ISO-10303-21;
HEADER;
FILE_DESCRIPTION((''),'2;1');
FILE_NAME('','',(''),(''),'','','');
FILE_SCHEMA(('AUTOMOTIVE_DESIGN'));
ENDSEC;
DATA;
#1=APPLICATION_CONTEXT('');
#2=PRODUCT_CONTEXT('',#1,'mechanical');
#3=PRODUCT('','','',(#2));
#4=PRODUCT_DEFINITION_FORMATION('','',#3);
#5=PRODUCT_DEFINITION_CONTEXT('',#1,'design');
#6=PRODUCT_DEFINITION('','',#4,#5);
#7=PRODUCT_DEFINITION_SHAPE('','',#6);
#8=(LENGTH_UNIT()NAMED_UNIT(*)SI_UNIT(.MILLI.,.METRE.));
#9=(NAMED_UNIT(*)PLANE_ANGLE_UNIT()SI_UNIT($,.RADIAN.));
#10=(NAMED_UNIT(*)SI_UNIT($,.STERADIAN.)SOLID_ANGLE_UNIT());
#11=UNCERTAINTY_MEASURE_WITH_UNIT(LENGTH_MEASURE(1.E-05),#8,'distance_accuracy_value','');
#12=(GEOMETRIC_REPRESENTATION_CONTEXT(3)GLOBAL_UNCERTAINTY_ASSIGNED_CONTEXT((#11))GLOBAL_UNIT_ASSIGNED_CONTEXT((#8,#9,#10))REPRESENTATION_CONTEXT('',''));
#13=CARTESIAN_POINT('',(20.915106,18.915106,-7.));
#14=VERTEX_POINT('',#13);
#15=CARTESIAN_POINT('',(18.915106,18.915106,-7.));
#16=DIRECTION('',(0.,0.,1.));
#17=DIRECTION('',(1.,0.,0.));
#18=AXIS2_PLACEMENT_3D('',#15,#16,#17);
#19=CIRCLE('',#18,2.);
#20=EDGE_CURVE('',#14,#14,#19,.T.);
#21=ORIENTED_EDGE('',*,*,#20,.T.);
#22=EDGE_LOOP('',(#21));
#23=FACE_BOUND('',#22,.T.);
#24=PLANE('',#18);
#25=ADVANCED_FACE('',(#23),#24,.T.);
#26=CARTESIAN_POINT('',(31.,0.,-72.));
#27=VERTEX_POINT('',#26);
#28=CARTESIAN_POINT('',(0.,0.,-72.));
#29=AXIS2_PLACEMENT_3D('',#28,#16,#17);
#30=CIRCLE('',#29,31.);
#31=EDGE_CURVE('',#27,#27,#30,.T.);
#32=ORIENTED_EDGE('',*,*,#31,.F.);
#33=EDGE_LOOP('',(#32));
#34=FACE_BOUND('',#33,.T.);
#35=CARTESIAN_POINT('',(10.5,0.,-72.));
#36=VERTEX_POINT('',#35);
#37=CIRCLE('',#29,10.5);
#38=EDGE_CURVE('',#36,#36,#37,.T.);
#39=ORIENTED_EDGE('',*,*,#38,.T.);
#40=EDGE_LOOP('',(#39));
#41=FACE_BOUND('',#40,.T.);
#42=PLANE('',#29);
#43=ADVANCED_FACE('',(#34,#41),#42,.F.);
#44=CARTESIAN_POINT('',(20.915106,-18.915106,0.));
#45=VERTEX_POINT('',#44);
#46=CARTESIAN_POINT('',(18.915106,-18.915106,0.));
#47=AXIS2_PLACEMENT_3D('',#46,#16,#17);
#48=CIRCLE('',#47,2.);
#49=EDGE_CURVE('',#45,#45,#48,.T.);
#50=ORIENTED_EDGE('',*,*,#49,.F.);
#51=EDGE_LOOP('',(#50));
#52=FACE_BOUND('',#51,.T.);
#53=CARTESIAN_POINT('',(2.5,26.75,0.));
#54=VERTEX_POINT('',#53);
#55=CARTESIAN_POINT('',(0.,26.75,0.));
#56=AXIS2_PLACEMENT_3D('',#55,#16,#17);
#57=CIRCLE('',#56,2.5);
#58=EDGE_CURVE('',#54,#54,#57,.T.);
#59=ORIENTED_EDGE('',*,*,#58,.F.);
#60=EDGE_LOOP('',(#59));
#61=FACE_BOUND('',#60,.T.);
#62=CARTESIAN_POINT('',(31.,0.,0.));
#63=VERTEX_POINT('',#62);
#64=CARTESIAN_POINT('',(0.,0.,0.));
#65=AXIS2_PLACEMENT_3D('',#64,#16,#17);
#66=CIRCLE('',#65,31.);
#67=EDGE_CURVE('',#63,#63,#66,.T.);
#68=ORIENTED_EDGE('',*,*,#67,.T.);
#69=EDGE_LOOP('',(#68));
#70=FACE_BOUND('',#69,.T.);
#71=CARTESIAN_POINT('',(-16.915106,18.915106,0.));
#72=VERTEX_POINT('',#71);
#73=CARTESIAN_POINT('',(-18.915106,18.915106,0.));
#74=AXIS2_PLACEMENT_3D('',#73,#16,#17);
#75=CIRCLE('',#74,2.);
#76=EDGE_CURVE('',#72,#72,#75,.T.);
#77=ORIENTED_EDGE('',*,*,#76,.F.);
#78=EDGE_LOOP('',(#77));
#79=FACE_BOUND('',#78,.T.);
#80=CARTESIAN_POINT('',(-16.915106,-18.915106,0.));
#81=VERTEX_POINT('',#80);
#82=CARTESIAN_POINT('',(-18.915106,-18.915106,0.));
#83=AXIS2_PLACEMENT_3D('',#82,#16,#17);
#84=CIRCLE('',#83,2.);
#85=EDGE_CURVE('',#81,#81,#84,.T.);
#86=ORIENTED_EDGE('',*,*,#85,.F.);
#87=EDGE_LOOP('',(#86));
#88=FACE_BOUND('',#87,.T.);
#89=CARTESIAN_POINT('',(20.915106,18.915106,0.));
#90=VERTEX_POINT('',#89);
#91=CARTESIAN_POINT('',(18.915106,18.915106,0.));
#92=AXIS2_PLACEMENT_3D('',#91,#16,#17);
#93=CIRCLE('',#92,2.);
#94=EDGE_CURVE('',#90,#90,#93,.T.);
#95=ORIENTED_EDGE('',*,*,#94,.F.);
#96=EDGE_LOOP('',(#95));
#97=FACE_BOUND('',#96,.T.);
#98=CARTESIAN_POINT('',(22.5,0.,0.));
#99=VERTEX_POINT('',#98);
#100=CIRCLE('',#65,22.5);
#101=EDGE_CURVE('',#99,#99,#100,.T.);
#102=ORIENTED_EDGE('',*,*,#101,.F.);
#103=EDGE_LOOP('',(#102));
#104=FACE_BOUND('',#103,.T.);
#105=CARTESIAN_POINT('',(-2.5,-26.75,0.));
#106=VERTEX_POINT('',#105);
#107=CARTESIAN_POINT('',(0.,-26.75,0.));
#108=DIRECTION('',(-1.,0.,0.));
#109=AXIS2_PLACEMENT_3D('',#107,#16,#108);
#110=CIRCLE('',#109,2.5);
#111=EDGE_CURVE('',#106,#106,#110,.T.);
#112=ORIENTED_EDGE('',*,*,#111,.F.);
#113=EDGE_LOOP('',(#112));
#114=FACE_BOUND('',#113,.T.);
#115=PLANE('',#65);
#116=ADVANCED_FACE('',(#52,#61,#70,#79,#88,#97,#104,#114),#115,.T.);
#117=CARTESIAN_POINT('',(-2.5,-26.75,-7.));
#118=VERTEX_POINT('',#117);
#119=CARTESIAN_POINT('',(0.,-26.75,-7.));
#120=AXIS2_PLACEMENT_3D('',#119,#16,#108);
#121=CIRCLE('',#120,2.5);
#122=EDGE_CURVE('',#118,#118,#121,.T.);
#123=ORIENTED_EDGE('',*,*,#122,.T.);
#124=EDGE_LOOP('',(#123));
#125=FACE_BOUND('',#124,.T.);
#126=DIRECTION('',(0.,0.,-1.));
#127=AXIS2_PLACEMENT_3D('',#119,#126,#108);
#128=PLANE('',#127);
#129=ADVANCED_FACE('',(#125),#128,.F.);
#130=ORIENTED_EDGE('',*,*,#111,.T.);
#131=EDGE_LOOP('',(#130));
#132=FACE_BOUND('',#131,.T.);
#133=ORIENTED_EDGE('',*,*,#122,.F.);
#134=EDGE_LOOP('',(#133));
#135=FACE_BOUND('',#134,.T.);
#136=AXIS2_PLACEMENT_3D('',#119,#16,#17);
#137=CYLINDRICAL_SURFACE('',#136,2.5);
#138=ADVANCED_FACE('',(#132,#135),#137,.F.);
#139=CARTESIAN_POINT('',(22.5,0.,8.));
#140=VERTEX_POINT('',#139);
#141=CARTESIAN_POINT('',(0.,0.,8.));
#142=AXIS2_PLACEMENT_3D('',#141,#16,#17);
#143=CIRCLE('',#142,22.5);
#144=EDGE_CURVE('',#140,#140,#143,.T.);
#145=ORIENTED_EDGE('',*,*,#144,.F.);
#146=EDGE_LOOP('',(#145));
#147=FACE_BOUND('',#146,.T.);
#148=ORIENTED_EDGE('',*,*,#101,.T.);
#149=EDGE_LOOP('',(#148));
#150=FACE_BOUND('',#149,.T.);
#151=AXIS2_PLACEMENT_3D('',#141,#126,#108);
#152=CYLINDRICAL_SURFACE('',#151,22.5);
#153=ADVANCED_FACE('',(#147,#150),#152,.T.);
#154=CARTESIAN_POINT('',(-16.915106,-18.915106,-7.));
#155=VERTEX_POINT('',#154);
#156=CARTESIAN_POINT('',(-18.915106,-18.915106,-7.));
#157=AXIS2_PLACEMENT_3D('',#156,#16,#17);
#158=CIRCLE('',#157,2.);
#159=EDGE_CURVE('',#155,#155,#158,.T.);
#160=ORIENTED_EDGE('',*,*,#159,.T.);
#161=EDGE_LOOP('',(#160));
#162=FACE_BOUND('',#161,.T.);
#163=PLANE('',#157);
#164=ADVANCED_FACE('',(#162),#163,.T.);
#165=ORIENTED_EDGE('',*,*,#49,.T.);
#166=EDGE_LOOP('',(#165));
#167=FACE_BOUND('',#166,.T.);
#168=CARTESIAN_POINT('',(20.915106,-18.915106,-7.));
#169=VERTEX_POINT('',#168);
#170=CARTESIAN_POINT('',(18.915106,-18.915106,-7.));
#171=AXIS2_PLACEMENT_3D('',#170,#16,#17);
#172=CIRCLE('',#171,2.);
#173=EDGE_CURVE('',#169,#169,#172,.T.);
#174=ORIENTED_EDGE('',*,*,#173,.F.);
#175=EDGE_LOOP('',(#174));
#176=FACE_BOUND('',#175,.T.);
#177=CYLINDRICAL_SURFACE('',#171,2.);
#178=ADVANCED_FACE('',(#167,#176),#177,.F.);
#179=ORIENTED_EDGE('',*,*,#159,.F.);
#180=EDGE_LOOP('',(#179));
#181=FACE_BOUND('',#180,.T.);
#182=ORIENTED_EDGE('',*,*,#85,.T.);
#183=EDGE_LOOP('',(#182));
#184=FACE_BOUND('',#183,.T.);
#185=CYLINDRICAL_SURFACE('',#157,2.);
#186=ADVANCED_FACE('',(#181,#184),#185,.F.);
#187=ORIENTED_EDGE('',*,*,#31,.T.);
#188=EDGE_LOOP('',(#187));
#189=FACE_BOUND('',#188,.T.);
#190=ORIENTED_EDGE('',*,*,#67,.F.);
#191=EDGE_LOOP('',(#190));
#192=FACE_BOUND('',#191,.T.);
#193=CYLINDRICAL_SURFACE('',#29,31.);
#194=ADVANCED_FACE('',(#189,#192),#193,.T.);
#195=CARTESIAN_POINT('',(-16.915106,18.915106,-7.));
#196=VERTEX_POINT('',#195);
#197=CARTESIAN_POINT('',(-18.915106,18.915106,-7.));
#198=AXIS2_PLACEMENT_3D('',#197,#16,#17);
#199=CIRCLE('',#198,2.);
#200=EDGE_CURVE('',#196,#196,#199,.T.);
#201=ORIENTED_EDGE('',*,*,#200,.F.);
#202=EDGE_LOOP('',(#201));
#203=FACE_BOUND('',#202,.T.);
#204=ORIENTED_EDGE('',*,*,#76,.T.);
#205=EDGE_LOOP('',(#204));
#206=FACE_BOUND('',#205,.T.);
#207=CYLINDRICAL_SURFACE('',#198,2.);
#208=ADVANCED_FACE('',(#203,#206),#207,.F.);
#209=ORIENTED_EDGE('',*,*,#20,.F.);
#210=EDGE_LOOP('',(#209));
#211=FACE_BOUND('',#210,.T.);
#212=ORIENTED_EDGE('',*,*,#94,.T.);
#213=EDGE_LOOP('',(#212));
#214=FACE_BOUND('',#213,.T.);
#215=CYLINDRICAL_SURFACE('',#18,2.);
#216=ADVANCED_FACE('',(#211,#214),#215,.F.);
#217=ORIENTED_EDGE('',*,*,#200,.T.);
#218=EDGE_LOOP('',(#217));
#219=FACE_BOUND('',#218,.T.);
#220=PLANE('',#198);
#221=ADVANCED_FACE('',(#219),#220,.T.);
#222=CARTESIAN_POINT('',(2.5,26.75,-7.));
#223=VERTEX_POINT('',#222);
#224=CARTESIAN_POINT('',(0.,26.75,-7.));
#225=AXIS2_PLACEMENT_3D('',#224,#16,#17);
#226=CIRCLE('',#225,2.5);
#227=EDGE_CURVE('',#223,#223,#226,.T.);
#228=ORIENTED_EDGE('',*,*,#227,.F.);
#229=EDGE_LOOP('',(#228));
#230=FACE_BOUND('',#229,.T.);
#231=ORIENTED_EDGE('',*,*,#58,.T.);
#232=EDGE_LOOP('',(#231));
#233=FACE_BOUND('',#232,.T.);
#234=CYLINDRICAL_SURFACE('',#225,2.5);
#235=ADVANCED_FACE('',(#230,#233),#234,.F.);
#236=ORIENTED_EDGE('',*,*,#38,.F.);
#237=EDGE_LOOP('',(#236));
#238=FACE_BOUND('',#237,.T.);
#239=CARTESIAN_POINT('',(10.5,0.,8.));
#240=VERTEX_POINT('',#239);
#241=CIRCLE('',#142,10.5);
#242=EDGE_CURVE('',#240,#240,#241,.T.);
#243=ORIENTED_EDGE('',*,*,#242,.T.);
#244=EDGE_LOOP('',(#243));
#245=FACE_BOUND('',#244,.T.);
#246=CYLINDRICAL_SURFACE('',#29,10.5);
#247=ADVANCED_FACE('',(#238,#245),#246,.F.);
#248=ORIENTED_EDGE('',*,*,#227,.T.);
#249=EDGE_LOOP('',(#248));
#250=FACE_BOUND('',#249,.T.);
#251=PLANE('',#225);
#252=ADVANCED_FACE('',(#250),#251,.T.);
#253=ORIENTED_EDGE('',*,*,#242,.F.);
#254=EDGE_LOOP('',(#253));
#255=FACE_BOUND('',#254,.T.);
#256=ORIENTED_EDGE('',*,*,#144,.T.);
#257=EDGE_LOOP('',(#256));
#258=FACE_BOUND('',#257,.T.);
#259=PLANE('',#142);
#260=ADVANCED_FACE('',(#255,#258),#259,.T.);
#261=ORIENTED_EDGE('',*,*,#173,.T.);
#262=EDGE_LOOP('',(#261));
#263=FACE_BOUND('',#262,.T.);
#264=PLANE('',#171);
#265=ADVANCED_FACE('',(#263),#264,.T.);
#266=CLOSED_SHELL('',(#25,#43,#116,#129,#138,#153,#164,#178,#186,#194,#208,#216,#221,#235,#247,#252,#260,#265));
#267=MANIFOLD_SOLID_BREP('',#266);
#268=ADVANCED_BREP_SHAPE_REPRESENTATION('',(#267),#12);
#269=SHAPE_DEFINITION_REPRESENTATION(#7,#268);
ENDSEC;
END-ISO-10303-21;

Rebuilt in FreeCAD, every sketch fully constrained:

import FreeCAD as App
import Part
import Sketcher
from FreeCAD import Vector
Q = App.Units.Quantity

doc = App.newDocument("Part")
body = doc.addObject("PartDesign::Body", "Body")

# Sketch on XY plane
sketch1 = doc.addObject("Sketcher::SketchObject", "Sketch")
body.addObject(sketch1)
sketch1.AttachmentSupport = (doc.XY_Plane, [""])
sketch1.MapMode = "FlatFace"
sketch1.addGeometry(Part.Circle(Vector(0, 0, 0), Vector(0, 0, 1), 31), False)
sketch1.addGeometry(Part.Circle(Vector(0, 0, 0), Vector(0, 0, 1), 10.5), False)
sketch1.addConstraint(Sketcher.Constraint("Coincident", 0, 3, -1, 1))
sketch1.addConstraint(Sketcher.Constraint("Coincident", 1, 3, -1, 1))
sketch1.addConstraint(Sketcher.Constraint("Diameter", 0, Q("62 mm")))
sketch1.addConstraint(Sketcher.Constraint("Diameter", 1, Q("21 mm")))
pad1 = doc.addObject("PartDesign::Pad", "Pad")
body.addObject(pad1)
pad1.Profile = sketch1
pad1.Length = 72
pad1.Reversed = True

# Sketch on XY plane
sketch2 = doc.addObject("Sketcher::SketchObject", "Sketch001")
body.addObject(sketch2)
sketch2.AttachmentSupport = (doc.XY_Plane, [""])
sketch2.MapMode = "FlatFace"
sketch2.AttachmentOffset = App.Placement(Vector(0, 0, 8), App.Rotation())
sketch2.addGeometry(Part.Circle(Vector(0, 0, 0), Vector(0, 0, 1), 22.5), False)
sketch2.addGeometry(Part.Circle(Vector(0, 0, 0), Vector(0, 0, 1), 10.5), False)
sketch2.addConstraint(Sketcher.Constraint("Coincident", 0, 3, -1, 1))
sketch2.addConstraint(Sketcher.Constraint("Coincident", 1, 3, -1, 1))
sketch2.addConstraint(Sketcher.Constraint("Diameter", 0, Q("45 mm")))
sketch2.addConstraint(Sketcher.Constraint("Diameter", 1, Q("21 mm")))
pad2 = doc.addObject("PartDesign::Pad", "Pad001")
body.addObject(pad2)
pad2.Profile = sketch2
pad2.Length = 8
pad2.Reversed = True

# Sketch on XY plane
sketch3 = doc.addObject("Sketcher::SketchObject", "Sketch002")
body.addObject(sketch3)
sketch3.AttachmentSupport = (doc.XY_Plane, [""])
sketch3.MapMode = "FlatFace"
sketch3.addGeometry(Part.Circle(Vector(0, 26.75, 0), Vector(0, 0, 1), 2.5), False)
sketch3.addGeometry(Part.Circle(Vector(18.915106, 18.915106, 0), Vector(0, 0, 1), 2), False)
sketch3.addGeometry(Part.Circle(Vector(0, -26.75, 0), Vector(0, 0, 1), 2.5), False)
sketch3.addGeometry(Part.Circle(Vector(18.915106, -18.915106, 0), Vector(0, 0, 1), 2), False)
sketch3.addGeometry(Part.Circle(Vector(-18.915106, -18.915106, 0), Vector(0, 0, 1), 2), False)
sketch3.addGeometry(Part.Circle(Vector(-18.915106, 18.915106, 0), Vector(0, 0, 1), 2), False)
sketch3.addConstraint(Sketcher.Constraint("Equal", 0, 2))
sketch3.addConstraint(Sketcher.Constraint("Equal", 1, 3))
sketch3.addConstraint(Sketcher.Constraint("Equal", 3, 4))
sketch3.addConstraint(Sketcher.Constraint("Equal", 4, 5))
sketch3.addConstraint(Sketcher.Constraint("Symmetric", 0, 3, 2, 3, -1, 1))
sketch3.addConstraint(Sketcher.Constraint("Symmetric", 1, 3, 4, 3, -1, 1))
sketch3.addConstraint(Sketcher.Constraint("Symmetric", 3, 3, 5, 3, -1, 1))
sketch3.addConstraint(Sketcher.Constraint("Symmetric", 3, 3, 4, 3, -2))
sketch3.addConstraint(Sketcher.Constraint("PointOnObject", 0, 3, -2))
sketch3.addConstraint(Sketcher.Constraint("Diameter", 0, Q("5 mm")))
sketch3.addConstraint(Sketcher.Constraint("Diameter", 1, Q("4 mm")))
sketch3.addConstraint(Sketcher.Constraint("DistanceY", 2, 3, 0, 3, Q("53.5 mm")))
sketch3.addConstraint(Sketcher.Constraint("DistanceX", -1, 1, 1, 3, Q("18.915106 mm")))
sketch3.addConstraint(Sketcher.Constraint("DistanceY", -1, 1, 1, 3, Q("18.915106 mm")))
pocket1 = doc.addObject("PartDesign::Pocket", "Pocket")
body.addObject(pocket1)
pocket1.Profile = sketch3
pocket1.Length = 7

doc.recompute()
